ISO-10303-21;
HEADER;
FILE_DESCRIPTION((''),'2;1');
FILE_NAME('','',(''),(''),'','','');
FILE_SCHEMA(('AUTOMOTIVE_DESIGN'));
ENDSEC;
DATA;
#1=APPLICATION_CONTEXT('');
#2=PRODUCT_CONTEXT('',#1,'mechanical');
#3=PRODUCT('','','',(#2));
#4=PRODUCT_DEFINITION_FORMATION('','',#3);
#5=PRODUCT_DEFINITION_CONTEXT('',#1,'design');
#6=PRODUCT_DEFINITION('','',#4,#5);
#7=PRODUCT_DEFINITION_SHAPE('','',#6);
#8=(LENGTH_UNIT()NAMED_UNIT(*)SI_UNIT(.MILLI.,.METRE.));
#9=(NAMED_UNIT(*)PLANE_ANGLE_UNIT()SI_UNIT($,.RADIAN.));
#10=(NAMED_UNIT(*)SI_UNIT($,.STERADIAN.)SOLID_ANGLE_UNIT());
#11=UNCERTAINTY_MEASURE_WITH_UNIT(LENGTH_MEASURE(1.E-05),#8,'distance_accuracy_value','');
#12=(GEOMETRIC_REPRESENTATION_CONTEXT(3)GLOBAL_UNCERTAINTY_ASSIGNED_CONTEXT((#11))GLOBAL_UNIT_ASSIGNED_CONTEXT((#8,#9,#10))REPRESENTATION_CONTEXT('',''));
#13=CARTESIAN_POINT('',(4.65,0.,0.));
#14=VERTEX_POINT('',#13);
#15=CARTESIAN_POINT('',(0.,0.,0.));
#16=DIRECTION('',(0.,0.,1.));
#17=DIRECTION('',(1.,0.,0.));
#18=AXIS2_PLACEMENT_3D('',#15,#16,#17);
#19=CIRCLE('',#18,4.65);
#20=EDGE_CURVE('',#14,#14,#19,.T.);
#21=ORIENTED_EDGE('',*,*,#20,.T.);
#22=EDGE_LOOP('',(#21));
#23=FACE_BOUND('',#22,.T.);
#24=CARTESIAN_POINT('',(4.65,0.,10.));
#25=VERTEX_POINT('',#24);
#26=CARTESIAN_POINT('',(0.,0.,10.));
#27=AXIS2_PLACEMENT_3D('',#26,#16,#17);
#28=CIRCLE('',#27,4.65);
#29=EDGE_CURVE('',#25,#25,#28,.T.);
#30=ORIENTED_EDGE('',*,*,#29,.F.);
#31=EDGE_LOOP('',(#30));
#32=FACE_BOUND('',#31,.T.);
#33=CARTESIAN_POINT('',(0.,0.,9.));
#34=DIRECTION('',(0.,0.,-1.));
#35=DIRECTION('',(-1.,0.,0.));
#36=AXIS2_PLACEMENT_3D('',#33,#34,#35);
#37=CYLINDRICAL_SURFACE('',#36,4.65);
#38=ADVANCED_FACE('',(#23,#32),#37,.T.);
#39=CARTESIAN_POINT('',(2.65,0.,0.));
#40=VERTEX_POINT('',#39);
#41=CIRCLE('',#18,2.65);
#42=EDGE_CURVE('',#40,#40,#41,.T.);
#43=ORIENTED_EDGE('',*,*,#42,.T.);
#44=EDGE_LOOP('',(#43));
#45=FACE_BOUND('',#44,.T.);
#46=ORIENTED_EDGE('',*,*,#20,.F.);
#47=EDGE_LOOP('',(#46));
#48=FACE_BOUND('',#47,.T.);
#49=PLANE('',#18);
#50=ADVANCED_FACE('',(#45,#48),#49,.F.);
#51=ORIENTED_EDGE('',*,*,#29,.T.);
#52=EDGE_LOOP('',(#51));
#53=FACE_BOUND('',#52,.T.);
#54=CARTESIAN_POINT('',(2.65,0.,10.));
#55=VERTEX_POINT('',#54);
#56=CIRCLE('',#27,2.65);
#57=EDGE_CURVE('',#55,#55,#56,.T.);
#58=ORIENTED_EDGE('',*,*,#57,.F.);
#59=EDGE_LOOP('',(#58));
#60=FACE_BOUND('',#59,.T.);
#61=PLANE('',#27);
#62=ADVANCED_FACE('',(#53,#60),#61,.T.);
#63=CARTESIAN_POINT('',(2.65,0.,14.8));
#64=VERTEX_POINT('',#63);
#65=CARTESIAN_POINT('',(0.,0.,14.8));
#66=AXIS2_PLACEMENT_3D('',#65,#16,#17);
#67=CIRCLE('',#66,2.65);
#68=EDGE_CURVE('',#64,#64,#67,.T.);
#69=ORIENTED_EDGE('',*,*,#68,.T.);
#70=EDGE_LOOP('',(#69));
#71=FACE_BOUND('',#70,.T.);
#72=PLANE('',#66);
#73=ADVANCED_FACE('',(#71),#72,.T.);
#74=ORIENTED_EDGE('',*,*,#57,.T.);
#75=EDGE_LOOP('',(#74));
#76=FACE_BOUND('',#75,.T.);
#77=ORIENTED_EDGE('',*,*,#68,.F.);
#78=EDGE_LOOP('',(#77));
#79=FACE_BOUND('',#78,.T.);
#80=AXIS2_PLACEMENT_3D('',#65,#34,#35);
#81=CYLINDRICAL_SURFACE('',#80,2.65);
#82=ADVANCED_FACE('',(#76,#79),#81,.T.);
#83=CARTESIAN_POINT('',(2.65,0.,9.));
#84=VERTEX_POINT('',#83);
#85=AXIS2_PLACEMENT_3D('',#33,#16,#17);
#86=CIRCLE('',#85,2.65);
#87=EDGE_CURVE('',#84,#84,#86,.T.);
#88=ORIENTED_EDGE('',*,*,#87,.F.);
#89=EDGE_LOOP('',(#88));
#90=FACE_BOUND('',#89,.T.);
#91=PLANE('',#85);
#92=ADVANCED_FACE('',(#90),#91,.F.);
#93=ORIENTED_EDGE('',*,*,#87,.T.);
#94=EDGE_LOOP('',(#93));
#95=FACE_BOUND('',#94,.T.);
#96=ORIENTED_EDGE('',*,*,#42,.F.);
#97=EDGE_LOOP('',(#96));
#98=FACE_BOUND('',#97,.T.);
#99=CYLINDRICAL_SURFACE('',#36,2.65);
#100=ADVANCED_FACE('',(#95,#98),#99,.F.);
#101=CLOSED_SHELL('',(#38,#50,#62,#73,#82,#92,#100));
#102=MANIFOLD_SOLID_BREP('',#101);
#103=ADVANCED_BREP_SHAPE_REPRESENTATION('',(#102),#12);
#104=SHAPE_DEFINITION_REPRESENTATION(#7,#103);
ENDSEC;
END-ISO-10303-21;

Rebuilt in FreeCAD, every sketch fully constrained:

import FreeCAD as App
import Part
import Sketcher

doc = App.newDocument("Part")
body = doc.addObject("PartDesign::Body", "Body")

sketch1 = doc.addObject("Sketcher::SketchObject", "Sketch")
body.addObject(sketch1)
sketch1.AttachmentSupport = (doc.XY_Plane, [""])
sketch1.MapMode = "FlatFace"
sketch1.addGeometry([
    Part.Circle(App.Vector(0, 0, 0), App.Vector(0, 0, 1), 4.7),
    Part.Circle(App.Vector(0, 0, 0), App.Vector(0, 0, 1), 2.6),
], False)
sketch1.addConstraint([
    Sketcher.Constraint("Coincident", 0, 3, -1, 1),
    Sketcher.Constraint("Coincident", 1, 3, -1, 1),
    Sketcher.Constraint("Diameter", 0, 9.3),
    Sketcher.Constraint("Diameter", 1, 5.3),
])
pad1 = doc.addObject("PartDesign::Pad", "Pad")
body.addObject(pad1)
pad1.Profile = sketch1
pad1.Length = 9

sketch2 = doc.addObject("Sketcher::SketchObject", "Sketch001")
body.addObject(sketch2)
sketch2.AttachmentSupport = (doc.XY_Plane, [""])
sketch2.MapMode = "FlatFace"
sketch2.AttachmentOffset = App.Placement(App.Vector(0, 0, 9), App.Rotation())
sketch2.addGeometry(Part.Circle(App.Vector(0, 0, 0), App.Vector(0, 0, 1), 4.7), False)
sketch2.addConstraint([
    Sketcher.Constraint("Coincident", 0, 3, -1, 1),
    Sketcher.Constraint("Diameter", 0, 9.3),
])
pad2 = doc.addObject("PartDesign::Pad", "Pad001")
body.addObject(pad2)
pad2.Profile = sketch2
pad2.Length = 1

sketch3 = doc.addObject("Sketcher::SketchObject", "Sketch002")
body.addObject(sketch3)
sketch3.AttachmentSupport = (doc.XY_Plane, [""])
sketch3.MapMode = "FlatFace"
sketch3.AttachmentOffset = App.Placement(App.Vector(0, 0, 10), App.Rotation())
sketch3.addGeometry(Part.Circle(App.Vector(0, 0, 0), App.Vector(0, 0, 1), 2.6), False)
sketch3.addConstraint([
    Sketcher.Constraint("Coincident", 0, 3, -1, 1),
    Sketcher.Constraint("Diameter", 0, 5.3),
])
pad3 = doc.addObject("PartDesign::Pad", "Pad002")
body.addObject(pad3)
pad3.Profile = sketch3
pad3.Length = 4.8

doc.recompute()
